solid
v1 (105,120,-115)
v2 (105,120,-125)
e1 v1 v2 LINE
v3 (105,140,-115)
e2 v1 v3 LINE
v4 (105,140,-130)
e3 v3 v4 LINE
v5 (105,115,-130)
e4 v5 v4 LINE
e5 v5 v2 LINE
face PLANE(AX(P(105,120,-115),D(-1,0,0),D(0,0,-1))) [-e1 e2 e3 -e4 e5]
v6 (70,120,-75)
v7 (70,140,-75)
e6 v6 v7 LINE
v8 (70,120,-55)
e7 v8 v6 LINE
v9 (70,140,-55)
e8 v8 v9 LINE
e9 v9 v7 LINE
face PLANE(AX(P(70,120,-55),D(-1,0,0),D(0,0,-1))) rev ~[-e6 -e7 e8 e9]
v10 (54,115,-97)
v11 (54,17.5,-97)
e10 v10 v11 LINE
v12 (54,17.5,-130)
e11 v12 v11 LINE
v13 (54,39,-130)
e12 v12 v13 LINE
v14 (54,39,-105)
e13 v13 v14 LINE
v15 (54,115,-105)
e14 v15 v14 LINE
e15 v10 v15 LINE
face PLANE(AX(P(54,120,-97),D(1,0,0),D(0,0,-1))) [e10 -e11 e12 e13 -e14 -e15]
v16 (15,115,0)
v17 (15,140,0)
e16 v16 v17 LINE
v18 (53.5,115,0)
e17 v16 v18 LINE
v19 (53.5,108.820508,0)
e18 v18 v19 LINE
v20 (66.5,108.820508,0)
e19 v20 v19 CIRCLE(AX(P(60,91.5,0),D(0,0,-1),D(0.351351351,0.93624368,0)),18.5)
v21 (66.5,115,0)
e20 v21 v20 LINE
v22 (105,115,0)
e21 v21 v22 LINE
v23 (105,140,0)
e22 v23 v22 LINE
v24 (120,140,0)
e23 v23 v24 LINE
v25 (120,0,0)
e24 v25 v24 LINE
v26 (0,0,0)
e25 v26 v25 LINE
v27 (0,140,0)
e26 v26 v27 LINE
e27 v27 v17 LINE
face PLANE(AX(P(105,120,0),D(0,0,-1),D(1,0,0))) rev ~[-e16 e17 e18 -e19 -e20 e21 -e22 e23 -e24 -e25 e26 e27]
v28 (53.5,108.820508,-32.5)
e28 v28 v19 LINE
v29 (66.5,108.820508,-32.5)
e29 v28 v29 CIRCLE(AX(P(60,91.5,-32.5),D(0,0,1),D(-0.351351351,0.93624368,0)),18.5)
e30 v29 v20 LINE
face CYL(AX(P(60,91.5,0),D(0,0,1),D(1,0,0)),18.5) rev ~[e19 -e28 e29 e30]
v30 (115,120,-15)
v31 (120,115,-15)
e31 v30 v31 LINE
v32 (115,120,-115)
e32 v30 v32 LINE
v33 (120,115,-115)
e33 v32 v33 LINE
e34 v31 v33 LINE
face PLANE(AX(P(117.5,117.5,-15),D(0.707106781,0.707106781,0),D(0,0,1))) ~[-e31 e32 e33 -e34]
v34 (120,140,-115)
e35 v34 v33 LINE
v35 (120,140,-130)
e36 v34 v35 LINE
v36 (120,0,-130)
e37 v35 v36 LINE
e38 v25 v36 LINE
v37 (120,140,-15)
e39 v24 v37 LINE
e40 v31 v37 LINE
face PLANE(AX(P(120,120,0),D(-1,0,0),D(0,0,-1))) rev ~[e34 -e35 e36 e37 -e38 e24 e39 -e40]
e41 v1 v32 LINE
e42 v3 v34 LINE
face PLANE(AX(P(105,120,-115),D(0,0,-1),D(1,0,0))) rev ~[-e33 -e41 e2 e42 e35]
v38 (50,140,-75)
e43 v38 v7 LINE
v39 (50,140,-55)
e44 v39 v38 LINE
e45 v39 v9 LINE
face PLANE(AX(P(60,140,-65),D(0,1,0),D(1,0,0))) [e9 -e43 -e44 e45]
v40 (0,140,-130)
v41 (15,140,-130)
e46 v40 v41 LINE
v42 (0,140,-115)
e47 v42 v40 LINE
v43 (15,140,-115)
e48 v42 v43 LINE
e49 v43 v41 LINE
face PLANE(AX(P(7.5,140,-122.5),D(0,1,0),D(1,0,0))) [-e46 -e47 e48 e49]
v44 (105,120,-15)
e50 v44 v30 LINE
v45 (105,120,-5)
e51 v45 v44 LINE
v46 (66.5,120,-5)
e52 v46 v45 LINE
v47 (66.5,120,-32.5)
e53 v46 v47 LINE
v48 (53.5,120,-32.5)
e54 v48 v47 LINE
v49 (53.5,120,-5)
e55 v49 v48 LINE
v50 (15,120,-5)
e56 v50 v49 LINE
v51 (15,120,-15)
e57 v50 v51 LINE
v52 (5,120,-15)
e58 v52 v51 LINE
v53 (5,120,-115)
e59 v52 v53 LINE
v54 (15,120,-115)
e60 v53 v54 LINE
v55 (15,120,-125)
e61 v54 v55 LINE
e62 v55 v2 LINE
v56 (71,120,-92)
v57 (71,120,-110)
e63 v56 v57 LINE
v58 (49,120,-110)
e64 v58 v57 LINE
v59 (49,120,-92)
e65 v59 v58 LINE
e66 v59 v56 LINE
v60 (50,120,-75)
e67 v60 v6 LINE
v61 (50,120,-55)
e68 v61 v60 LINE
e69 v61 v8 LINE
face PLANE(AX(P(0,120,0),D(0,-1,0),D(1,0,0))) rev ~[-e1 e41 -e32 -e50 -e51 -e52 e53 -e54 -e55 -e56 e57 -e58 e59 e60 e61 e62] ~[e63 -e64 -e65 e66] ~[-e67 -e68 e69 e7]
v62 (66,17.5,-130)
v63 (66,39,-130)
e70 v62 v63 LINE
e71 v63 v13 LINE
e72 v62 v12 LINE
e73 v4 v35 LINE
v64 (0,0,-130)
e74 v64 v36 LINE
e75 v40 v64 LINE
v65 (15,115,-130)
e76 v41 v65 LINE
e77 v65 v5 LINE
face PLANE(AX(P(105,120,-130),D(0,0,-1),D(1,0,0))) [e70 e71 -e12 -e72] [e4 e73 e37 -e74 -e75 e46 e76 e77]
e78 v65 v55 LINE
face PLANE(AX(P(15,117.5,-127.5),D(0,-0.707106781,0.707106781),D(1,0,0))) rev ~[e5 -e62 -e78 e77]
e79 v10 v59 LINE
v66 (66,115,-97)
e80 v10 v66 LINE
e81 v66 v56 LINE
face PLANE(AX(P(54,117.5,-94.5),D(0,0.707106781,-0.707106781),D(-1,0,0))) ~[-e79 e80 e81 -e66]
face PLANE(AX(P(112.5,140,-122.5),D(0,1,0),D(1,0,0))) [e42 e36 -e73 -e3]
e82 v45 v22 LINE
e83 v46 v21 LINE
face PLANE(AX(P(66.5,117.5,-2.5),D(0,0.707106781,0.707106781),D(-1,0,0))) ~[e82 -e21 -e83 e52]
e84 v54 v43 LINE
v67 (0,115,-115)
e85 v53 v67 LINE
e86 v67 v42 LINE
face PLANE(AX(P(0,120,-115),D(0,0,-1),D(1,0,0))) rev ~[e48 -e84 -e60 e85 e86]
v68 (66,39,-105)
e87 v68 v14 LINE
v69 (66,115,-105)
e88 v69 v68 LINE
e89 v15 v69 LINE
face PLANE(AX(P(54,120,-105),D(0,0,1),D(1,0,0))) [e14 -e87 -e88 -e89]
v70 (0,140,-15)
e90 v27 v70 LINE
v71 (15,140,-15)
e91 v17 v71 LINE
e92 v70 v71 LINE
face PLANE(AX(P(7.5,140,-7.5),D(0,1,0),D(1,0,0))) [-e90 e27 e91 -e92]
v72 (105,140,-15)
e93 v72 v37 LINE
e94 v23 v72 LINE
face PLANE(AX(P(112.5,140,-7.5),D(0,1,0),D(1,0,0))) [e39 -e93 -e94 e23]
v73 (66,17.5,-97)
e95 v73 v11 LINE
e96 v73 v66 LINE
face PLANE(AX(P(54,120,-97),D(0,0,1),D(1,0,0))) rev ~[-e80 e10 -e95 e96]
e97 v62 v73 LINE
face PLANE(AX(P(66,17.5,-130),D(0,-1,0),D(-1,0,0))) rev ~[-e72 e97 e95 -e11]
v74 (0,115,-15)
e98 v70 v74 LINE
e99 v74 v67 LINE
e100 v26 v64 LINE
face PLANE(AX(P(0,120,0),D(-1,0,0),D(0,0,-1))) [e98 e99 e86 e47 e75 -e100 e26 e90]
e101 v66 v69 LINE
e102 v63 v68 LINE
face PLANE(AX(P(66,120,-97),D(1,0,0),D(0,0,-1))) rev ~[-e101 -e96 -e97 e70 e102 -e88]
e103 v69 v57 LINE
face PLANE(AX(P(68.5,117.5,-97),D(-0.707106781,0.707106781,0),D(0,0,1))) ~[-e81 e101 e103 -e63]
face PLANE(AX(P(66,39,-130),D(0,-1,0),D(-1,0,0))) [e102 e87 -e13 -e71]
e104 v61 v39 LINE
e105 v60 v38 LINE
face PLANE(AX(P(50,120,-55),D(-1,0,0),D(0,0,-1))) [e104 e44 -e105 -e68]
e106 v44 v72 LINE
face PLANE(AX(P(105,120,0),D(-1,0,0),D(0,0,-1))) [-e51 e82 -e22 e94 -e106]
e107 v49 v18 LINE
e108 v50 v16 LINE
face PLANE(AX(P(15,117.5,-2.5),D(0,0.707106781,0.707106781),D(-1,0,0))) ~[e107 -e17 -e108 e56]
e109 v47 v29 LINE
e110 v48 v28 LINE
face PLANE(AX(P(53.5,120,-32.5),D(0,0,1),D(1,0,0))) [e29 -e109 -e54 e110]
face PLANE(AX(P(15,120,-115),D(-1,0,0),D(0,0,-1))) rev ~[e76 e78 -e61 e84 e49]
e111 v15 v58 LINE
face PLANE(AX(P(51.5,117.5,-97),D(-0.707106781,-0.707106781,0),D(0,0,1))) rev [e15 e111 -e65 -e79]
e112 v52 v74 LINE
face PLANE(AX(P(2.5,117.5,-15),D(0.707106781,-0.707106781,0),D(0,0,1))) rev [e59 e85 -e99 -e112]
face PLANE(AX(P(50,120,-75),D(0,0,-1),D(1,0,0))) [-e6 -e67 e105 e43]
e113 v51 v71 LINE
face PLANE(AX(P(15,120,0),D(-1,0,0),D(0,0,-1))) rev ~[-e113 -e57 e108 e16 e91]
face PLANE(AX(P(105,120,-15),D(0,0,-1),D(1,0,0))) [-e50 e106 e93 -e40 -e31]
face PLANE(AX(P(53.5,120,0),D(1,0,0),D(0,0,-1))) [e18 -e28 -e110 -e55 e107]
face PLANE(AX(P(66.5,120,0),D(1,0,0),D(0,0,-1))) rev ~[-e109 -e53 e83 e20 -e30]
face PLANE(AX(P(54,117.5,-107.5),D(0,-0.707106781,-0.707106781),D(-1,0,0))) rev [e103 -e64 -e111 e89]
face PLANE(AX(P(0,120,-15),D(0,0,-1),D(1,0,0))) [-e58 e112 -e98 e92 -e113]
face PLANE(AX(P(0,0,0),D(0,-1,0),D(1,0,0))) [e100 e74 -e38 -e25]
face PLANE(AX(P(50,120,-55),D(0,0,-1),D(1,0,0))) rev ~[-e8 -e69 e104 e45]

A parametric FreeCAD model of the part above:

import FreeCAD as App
import Part
import Sketcher
from FreeCAD import Vector


def edges_at(feature, points):
    """Names of the edges that pass closest to the given points."""
    edges = feature.Shape.Edges
    near = lambda p: min(range(len(edges)), key=lambda i: edges[i].distToShape(Part.Vertex(*p))[0])
    return sorted({f"Edge{near(p) + 1}" for p in points})

doc = App.newDocument("Part")
params = doc.addObject("Spreadsheet::Sheet", "Params")
for row, (alias, value) in enumerate([
    ("sketch1_width", "120 mm"),
    ("pad1_length", "130 mm"),
    ("sketch2_width", "12 mm"),
    ("sketch2_height", "21.5 mm"),
    ("pocket1_length", "33 mm"),
    ("sketch3_width", "12 mm"),
    ("sketch3_height", "8 mm"),
    ("pocket2_length", "91 mm"),
    ("sketch4_diameter", "37 mm"),
    ("pocket3_length", "32.5 mm"),
    ("sketch5_width", "15 mm"),
    ("pad2_length", "20 mm"),
    ("sketch6_width", "20 mm"),
    ("pad3_length", "20 mm"),
    ("sketch7_width", "15 mm"),
    ("pad4_length", "20 mm"),
    ("sketch8_width", "15 mm"),
    ("pad5_length", "20 mm"),
    ("sketch9_width", "15 mm"),
    ("pad6_length", "20 mm"),
    ("chamfer_size", "5 mm"),
    ("sketch10_width", "13 mm"),
    ("sketch10_height", "32.5 mm"),
    ("pocket4_length", "30 mm"),
    ("chamfer2_size", "5 mm"),
], start=1):
    params.set(f"A{row}", alias)
    params.set(f"B{row}", "=" + value)
    params.setAlias(f"B{row}", alias)

body = doc.addObject("PartDesign::Body", "Body")

sketch1 = doc.addObject("Sketcher::SketchObject", "Sketch")
body.addObject(sketch1)
sketch1.AttachmentSupport = (doc.XY_Plane, [""])
sketch1.MapMode = "FlatFace"
sketch1.addGeometry(Part.LineSegment(Vector(0, 120, 0), Vector(0, 0, 0)), False)
sketch1.addGeometry(Part.LineSegment(Vector(0, 0, 0), Vector(120, 0, 0)), False)
sketch1.addGeometry(Part.LineSegment(Vector(120, 0, 0), Vector(120, 120, 0)), False)
sketch1.addGeometry(Part.LineSegment(Vector(120, 120, 0), Vector(0, 120, 0)), False)
sketch1.addConstraint(Sketcher.Constraint("Coincident", 0, 2, 1, 1))
sketch1.addConstraint(Sketcher.Constraint("Coincident", 1, 2, 2, 1))
sketch1.addConstraint(Sketcher.Constraint("Coincident", 2, 2, 3, 1))
sketch1.addConstraint(Sketcher.Constraint("Coincident", 3, 2, 0, 1))
sketch1.addConstraint(Sketcher.Constraint("Vertical", 0))
sketch1.addConstraint(Sketcher.Constraint("Horizontal", 1))
sketch1.addConstraint(Sketcher.Constraint("Vertical", 2))
sketch1.addConstraint(Sketcher.Constraint("Horizontal", 3))
sketch1.addConstraint(Sketcher.Constraint("Coincident", 0, 2, -1, 1))
sketch1.addConstraint(Sketcher.Constraint("Equal", 3, 0))
sketch1.addConstraint(Sketcher.Constraint("DistanceX", 1, 1, 1, 2, 120.0))
sketch1.setExpression("Constraints[10]", "Params.sketch1_width")
pad1 = doc.addObject("PartDesign::Pad", "Pad")
body.addObject(pad1)
pad1.Profile = sketch1
pad1.setExpression("Length", "Params.pad1_length")
pad1.Reversed = True

sketch2 = doc.addObject("Sketcher::SketchObject", "Sketch001")
body.addObject(sketch2)
sketch2.AttachmentSupport = (doc.XY_Plane, [""])
sketch2.MapMode = "FlatFace"
sketch2.AttachmentOffset = App.Placement(Vector(0, 0, -130), App.Rotation())
sketch2.addGeometry(Part.LineSegment(Vector(66, 39, 0), Vector(66, 18, 0)), False)
sketch2.addGeometry(Part.LineSegment(Vector(66, 18, 0), Vector(54, 18, 0)), False)
sketch2.addGeometry(Part.LineSegment(Vector(54, 18, 0), Vector(54, 39, 0)), False)
sketch2.addGeometry(Part.LineSegment(Vector(54, 39, 0), Vector(66, 39, 0)), False)
sketch2.addConstraint(Sketcher.Constraint("Coincident", 0, 2, 1, 1))
sketch2.addConstraint(Sketcher.Constraint("Coincident", 1, 2, 2, 1))
sketch2.addConstraint(Sketcher.Constraint("Coincident", 2, 2, 3, 1))
sketch2.addConstraint(Sketcher.Constraint("Coincident", 3, 2, 0, 1))
sketch2.addConstraint(Sketcher.Constraint("Vertical", 0))
sketch2.addConstraint(Sketcher.Constraint("Horizontal", 1))
sketch2.addConstraint(Sketcher.Constraint("Vertical", 2))
sketch2.addConstraint(Sketcher.Constraint("Horizontal", 3))
sketch2.addConstraint(Sketcher.Constraint("DistanceX", 1, 2, 1, 1, 12.0))
sketch2.addConstraint(Sketcher.Constraint("DistanceY", 0, 2, 0, 1, 21.5))
sketch2.addConstraint(Sketcher.Constraint("DistanceX", -1, 1, 0, 2, 66.0))
sketch2.addConstraint(Sketcher.Constraint("DistanceY", -1, 1, 2, 2, 39.0))
sketch2.setExpression("Constraints[8]", "Params.sketch2_width")
sketch2.setExpression("Constraints[9]", "Params.sketch2_height")
pocket1 = doc.addObject("PartDesign::Pocket", "Pocket")
body.addObject(pocket1)
pocket1.Profile = sketch2
pocket1.setExpression("Length", "Params.pocket1_length")
pocket1.Reversed = True

sketch3 = doc.addObject("Sketcher::SketchObject", "Sketch002")
body.addObject(sketch3)
sketch3.AttachmentSupport = (doc.XZ_Plane, [""])
sketch3.MapMode = "FlatFace"
sketch3.AttachmentOffset = App.Placement(Vector(0, 0, -120), App.Rotation())
sketch3.addGeometry(Part.LineSegment(Vector(54, -105, 0), Vector(54, -97, 0)), False)
sketch3.addGeometry(Part.LineSegment(Vector(54, -97, 0), Vector(66, -97, 0)), False)
sketch3.addGeometry(Part.LineSegment(Vector(66, -97, 0), Vector(66, -105, 0)), False)
sketch3.addGeometry(Part.LineSegment(Vector(66, -105, 0), Vector(54, -105, 0)), False)
sketch3.addConstraint(Sketcher.Constraint("Coincident", 0, 2, 1, 1))
sketch3.addConstraint(Sketcher.Constraint("Coincident", 1, 2, 2, 1))
sketch3.addConstraint(Sketcher.Constraint("Coincident", 2, 2, 3, 1))
sketch3.addConstraint(Sketcher.Constraint("Coincident", 3, 2, 0, 1))
sketch3.addConstraint(Sketcher.Constraint("Vertical", 0))
sketch3.addConstraint(Sketcher.Constraint("Horizontal", 1))
sketch3.addConstraint(Sketcher.Constraint("Vertical", 2))
sketch3.addConstraint(Sketcher.Constraint("Horizontal", 3))
sketch3.addConstraint(Sketcher.Constraint("DistanceX", 1, 1, 1, 2, 12.0))
sketch3.addConstraint(Sketcher.Constraint("DistanceY", 0, 1, 0, 2, 8.0))
sketch3.addConstraint(Sketcher.Constraint("DistanceX", -1, 1, 0, 2, 54.0))
sketch3.addConstraint(Sketcher.Constraint("DistanceY", 0, 2, -1, 1, 97.0))
sketch3.setExpression("Constraints[8]", "Params.sketch3_width")
sketch3.setExpression("Constraints[9]", "Params.sketch3_height")
pocket2 = doc.addObject("PartDesign::Pocket", "Pocket001")
body.addObject(pocket2)
pocket2.Profile = sketch3
pocket2.setExpression("Length", "Params.pocket2_length")
pocket2.Reversed = True

sketch4 = doc.addObject("Sketcher::SketchObject", "Sketch003")
body.addObject(sketch4)
sketch4.AttachmentSupport = (doc.XY_Plane, [""])
sketch4.MapMode = "FlatFace"
sketch4.addGeometry(Part.Circle(Vector(60, 92, 0), Vector(0, 0, 1), 18), False)
sketch4.addConstraint(Sketcher.Constraint("Diameter", 0, 37.0))
sketch4.addConstraint(Sketcher.Constraint("DistanceX", -1, 1, 0, 3, 60.0))
sketch4.addConstraint(Sketcher.Constraint("DistanceY", -1, 1, 0, 3, 91.5))
sketch4.setExpression("Constraints[0]", "Params.sketch4_diameter")
pocket3 = doc.addObject("PartDesign::Pocket", "Pocket002")
body.addObject(pocket3)
pocket3.Profile = sketch4
pocket3.setExpression("Length", "Params.pocket3_length")

sketch5 = doc.addObject("Sketcher::SketchObject", "Sketch004")
body.addObject(sketch5)
sketch5.AttachmentSupport = (doc.XZ_Plane, [""])
sketch5.MapMode = "FlatFace"
sketch5.AttachmentOffset = App.Placement(Vector(0, 0, -120), App.Rotation())
sketch5.addGeometry(Part.LineSegment(Vector(0, -130, 0), Vector(0, -115, 0)), False)
sketch5.addGeometry(Part.LineSegment(Vector(0, -115, 0), Vector(15, -115, 0)), False)
sketch5.addGeometry(Part.LineSegment(Vector(15, -115, 0), Vector(15, -130, 0)), False)
sketch5.addGeometry(Part.LineSegment(Vector(15, -130, 0), Vector(0, -130, 0)), False)
sketch5.addConstraint(Sketcher.Constraint("Coincident", 0, 2, 1, 1))
sketch5.addConstraint(Sketcher.Constraint("Coincident", 1, 2, 2, 1))
sketch5.addConstraint(Sketcher.Constraint("Coincident", 2, 2, 3, 1))
sketch5.addConstraint(Sketcher.Constraint("Coincident", 3, 2, 0, 1))
sketch5.addConstraint(Sketcher.Constraint("Vertical", 0))
sketch5.addConstraint(Sketcher.Constraint("Horizontal", 1))
sketch5.addConstraint(Sketcher.Constraint("Vertical", 2))
sketch5.addConstraint(Sketcher.Constraint("Horizontal", 3))
sketch5.addConstraint(Sketcher.Constraint("PointOnObject", 0, 2, -2))
sketch5.addConstraint(Sketcher.Constraint("Equal", 3, 0))
sketch5.addConstraint(Sketcher.Constraint("DistanceX", 1, 1, 1, 2, 15.0))
sketch5.addConstraint(Sketcher.Constraint("DistanceY", 0, 2, -1, 1, 115.0))
sketch5.setExpression("Constraints[10]", "Params.sketch5_width")
pad2 = doc.addObject("PartDesign::Pad", "Pad001")
body.addObject(pad2)
pad2.Profile = sketch5
pad2.setExpression("Length", "Params.pad2_length")
pad2.Reversed = True

sketch6 = doc.addObject("Sketcher::SketchObject", "Sketch005")
body.addObject(sketch6)
sketch6.AttachmentSupport = (doc.XZ_Plane, [""])
sketch6.MapMode = "FlatFace"
sketch6.AttachmentOffset = App.Placement(Vector(0, 0, -120), App.Rotation())
sketch6.addGeometry(Part.LineSegment(Vector(50, -75, 0), Vector(50, -55, 0)), False)
sketch6.addGeometry(Part.LineSegment(Vector(50, -55, 0), Vector(70, -55, 0)), False)
sketch6.addGeometry(Part.LineSegment(Vector(70, -55, 0), Vector(70, -75, 0)), False)
sketch6.addGeometry(Part.LineSegment(Vector(70, -75, 0), Vector(50, -75, 0)), False)
sketch6.addConstraint(Sketcher.Constraint("Coincident", 0, 2, 1, 1))
sketch6.addConstraint(Sketcher.Constraint("Coincident", 1, 2, 2, 1))
sketch6.addConstraint(Sketcher.Constraint("Coincident", 2, 2, 3, 1))
sketch6.addConstraint(Sketcher.Constraint("Coincident", 3, 2, 0, 1))
sketch6.addConstraint(Sketcher.Constraint("Vertical", 0))
sketch6.addConstraint(Sketcher.Constraint("Horizontal", 1))
sketch6.addConstraint(Sketcher.Constraint("Vertical", 2))
sketch6.addConstraint(Sketcher.Constraint("Horizontal", 3))
sketch6.addConstraint(Sketcher.Constraint("Equal", 3, 0))
sketch6.addConstraint(Sketcher.Constraint("DistanceX", 1, 1, 1, 2, 20.0))
sketch6.addConstraint(Sketcher.Constraint("DistanceX", -1, 1, 0, 2, 50.0))
sketch6.addConstraint(Sketcher.Constraint("DistanceY", 0, 2, -1, 1, 55.0))
sketch6.setExpression("Constraints[9]", "Params.sketch6_width")
pad3 = doc.addObject("PartDesign::Pad", "Pad002")
body.addObject(pad3)
pad3.Profile = sketch6
pad3.setExpression("Length", "Params.pad3_length")
pad3.Reversed = True

sketch7 = doc.addObject("Sketcher::SketchObject", "Sketch006")
body.addObject(sketch7)
sketch7.AttachmentSupport = (doc.XZ_Plane, [""])
sketch7.MapMode = "FlatFace"
sketch7.AttachmentOffset = App.Placement(Vector(0, 0, -120), App.Rotation())
sketch7.addGeometry(Part.LineSegment(Vector(0, -15, 0), Vector(0, 0, 0)), False)
sketch7.addGeometry(Part.LineSegment(Vector(0, 0, 0), Vector(15, 0, 0)), False)
sketch7.addGeometry(Part.LineSegment(Vector(15, 0, 0), Vector(15, -15, 0)), False)
sketch7.addGeometry(Part.LineSegment(Vector(15, -15, 0), Vector(0, -15, 0)), False)
sketch7.addConstraint(Sketcher.Constraint("Coincident", 0, 2, 1, 1))
sketch7.addConstraint(Sketcher.Constraint("Coincident", 1, 2, 2, 1))
sketch7.addConstraint(Sketcher.Constraint("Coincident", 2, 2, 3, 1))
sketch7.addConstraint(Sketcher.Constraint("Coincident", 3, 2, 0, 1))
sketch7.addConstraint(Sketcher.Constraint("Vertical", 0))
sketch7.addConstraint(Sketcher.Constraint("Horizontal", 1))
sketch7.addConstraint(Sketcher.Constraint("Vertical", 2))
sketch7.addConstraint(Sketcher.Constraint("Horizontal", 3))
sketch7.addConstraint(Sketcher.Constraint("Coincident", 0, 2, -1, 1))
sketch7.addConstraint(Sketcher.Constraint("Equal", 3, 0))
sketch7.addConstraint(Sketcher.Constraint("DistanceX", 1, 1, 1, 2, 15.0))
sketch7.setExpression("Constraints[10]", "Params.sketch7_width")
pad4 = doc.addObject("PartDesign::Pad", "Pad003")
body.addObject(pad4)
pad4.Profile = sketch7
pad4.setExpression("Length", "Params.pad4_length")
pad4.Reversed = True

sketch8 = doc.addObject("Sketcher::SketchObject", "Sketch007")
body.addObject(sketch8)
sketch8.AttachmentSupport = (doc.XZ_Plane, [""])
sketch8.MapMode = "FlatFace"
sketch8.AttachmentOffset = App.Placement(Vector(0, 0, -120), App.Rotation())
sketch8.addGeometry(Part.LineSegment(Vector(105, -130, 0), Vector(105, -115, 0)), False)
sketch8.addGeometry(Part.LineSegment(Vector(105, -115, 0), Vector(120, -115, 0)), False)
sketch8.addGeometry(Part.LineSegment(Vector(120, -115, 0), Vector(120, -130, 0)), False)
sketch8.addGeometry(Part.LineSegment(Vector(120, -130, 0), Vector(105, -130, 0)), False)
sketch8.addConstraint(Sketcher.Constraint("Coincident", 0, 2, 1, 1))
sketch8.addConstraint(Sketcher.Constraint("Coincident", 1, 2, 2, 1))
sketch8.addConstraint(Sketcher.Constraint("Coincident", 2, 2, 3, 1))
sketch8.addConstraint(Sketcher.Constraint("Coincident", 3, 2, 0, 1))
sketch8.addConstraint(Sketcher.Constraint("Vertical", 0))
sketch8.addConstraint(Sketcher.Constraint("Horizontal", 1))
sketch8.addConstraint(Sketcher.Constraint("Vertical", 2))
sketch8.addConstraint(Sketcher.Constraint("Horizontal", 3))
sketch8.addConstraint(Sketcher.Constraint("Equal", 3, 0))
sketch8.addConstraint(Sketcher.Constraint("DistanceX", 1, 1, 1, 2, 15.0))
sketch8.addConstraint(Sketcher.Constraint("DistanceX", -1, 1, 0, 2, 105.0))
sketch8.addConstraint(Sketcher.Constraint("DistanceY", 0, 2, -1, 1, 115.0))
sketch8.setExpression("Constraints[9]", "Params.sketch8_width")
pad5 = doc.addObject("PartDesign::Pad", "Pad004")
body.addObject(pad5)
pad5.Profile = sketch8
pad5.setExpression("Length", "Params.pad5_length")
pad5.Reversed = True

sketch9 = doc.addObject("Sketcher::SketchObject", "Sketch008")
body.addObject(sketch9)
sketch9.AttachmentSupport = (doc.XZ_Plane, [""])
sketch9.MapMode = "FlatFace"
sketch9.AttachmentOffset = App.Placement(Vector(0, 0, -120), App.Rotation())
sketch9.addGeometry(Part.LineSegment(Vector(105, -15, 0), Vector(105, 0, 0)), False)
sketch9.addGeometry(Part.LineSegment(Vector(105, 0, 0), Vector(120, 0, 0)), False)
sketch9.addGeometry(Part.LineSegment(Vector(120, 0, 0), Vector(120, -15, 0)), False)
sketch9.addGeometry(Part.LineSegment(Vector(120, -15, 0), Vector(105, -15, 0)), False)
sketch9.addConstraint(Sketcher.Constraint("Coincident", 0, 2, 1, 1))
sketch9.addConstraint(Sketcher.Constraint("Coincident", 1, 2, 2, 1))
sketch9.addConstraint(Sketcher.Constraint("Coincident", 2, 2, 3, 1))
sketch9.addConstraint(Sketcher.Constraint("Coincident", 3, 2, 0, 1))
sketch9.addConstraint(Sketcher.Constraint("Vertical", 0))
sketch9.addConstraint(Sketcher.Constraint("Horizontal", 1))
sketch9.addConstraint(Sketcher.Constraint("Vertical", 2))
sketch9.addConstraint(Sketcher.Constraint("Horizontal", 3))
sketch9.addConstraint(Sketcher.Constraint("PointOnObject", 0, 2, -1))
sketch9.addConstraint(Sketcher.Constraint("Equal", 3, 0))
sketch9.addConstraint(Sketcher.Constraint("DistanceX", 1, 1, 1, 2, 15.0))
sketch9.addConstraint(Sketcher.Constraint("DistanceX", -1, 1, 0, 2, 105.0))
sketch9.setExpression("Constraints[10]", "Params.sketch9_width")
pad6 = doc.addObject("PartDesign::Pad", "Pad005")
body.addObject(pad6)
pad6.Profile = sketch9
pad6.setExpression("Length", "Params.pad6_length")
pad6.Reversed = True
doc.recompute()

chamfer = doc.addObject("PartDesign::Chamfer", "Chamfer")
body.addObject(chamfer)
chamfer.Base = (pad6, edges_at(pad6, [
    (60, 120, -105),
    (66, 120, -101),
    (54, 120, -101),
    (60, 120, -97),
]))
chamfer.setExpression("Size", "Params.chamfer_size")

sketch10 = doc.addObject("Sketcher::SketchObject", "Sketch009")
body.addObject(sketch10)
sketch10.AttachmentSupport = (doc.XZ_Plane, [""])
sketch10.MapMode = "FlatFace"
sketch10.AttachmentOffset = App.Placement(Vector(0, 0, -120), App.Rotation())
sketch10.addGeometry(Part.LineSegment(Vector(54, -32, 0), Vector(54, 0, 0)), False)
sketch10.addGeometry(Part.LineSegment(Vector(54, 0, 0), Vector(66, 0, 0)), False)
sketch10.addGeometry(Part.LineSegment(Vector(66, 0, 0), Vector(66, -32, 0)), False)
sketch10.addGeometry(Part.LineSegment(Vector(66, -32, 0), Vector(54, -32, 0)), False)
sketch10.addConstraint(Sketcher.Constraint("Coincident", 0, 2, 1, 1))
sketch10.addConstraint(Sketcher.Constraint("Coincident", 1, 2, 2, 1))
sketch10.addConstraint(Sketcher.Constraint("Coincident", 2, 2, 3, 1))
sketch10.addConstraint(Sketcher.Constraint("Coincident", 3, 2, 0, 1))
sketch10.addConstraint(Sketcher.Constraint("Vertical", 0))
sketch10.addConstraint(Sketcher.Constraint("Horizontal", 1))
sketch10.addConstraint(Sketcher.Constraint("Vertical", 2))
sketch10.addConstraint(Sketcher.Constraint("Horizontal", 3))
sketch10.addConstraint(Sketcher.Constraint("PointOnObject", 0, 2, -1))
sketch10.addConstraint(Sketcher.Constraint("DistanceX", 1, 1, 1, 2, 13.0))
sketch10.addConstraint(Sketcher.Constraint("DistanceY", 0, 1, 0, 2, 32.5))
sketch10.addConstraint(Sketcher.Constraint("DistanceX", -1, 1, 0, 2, 53.5))
sketch10.setExpression("Constraints[9]", "Params.sketch10_width")
sketch10.setExpression("Constraints[10]", "Params.sketch10_height")
pocket4 = doc.addObject("PartDesign::Pocket", "Pocket003")
body.addObject(pocket4)
pocket4.Profile = sketch10
pocket4.setExpression("Length", "Params.pocket4_length")
pocket4.Reversed = True
doc.recompute()

chamfer2 = doc.addObject("PartDesign::Chamfer", "Chamfer001")
body.addObject(chamfer2)
chamfer2.Base = (pocket4, edges_at(pocket4, [
    (120, 120, -65),
    (85.75, 120, 0),
    (60, 120, -130),
    (0, 120, -65),
    (34.25, 120, 0),
]))
chamfer2.setExpression("Size", "Params.chamfer2_size")

doc.recompute()
